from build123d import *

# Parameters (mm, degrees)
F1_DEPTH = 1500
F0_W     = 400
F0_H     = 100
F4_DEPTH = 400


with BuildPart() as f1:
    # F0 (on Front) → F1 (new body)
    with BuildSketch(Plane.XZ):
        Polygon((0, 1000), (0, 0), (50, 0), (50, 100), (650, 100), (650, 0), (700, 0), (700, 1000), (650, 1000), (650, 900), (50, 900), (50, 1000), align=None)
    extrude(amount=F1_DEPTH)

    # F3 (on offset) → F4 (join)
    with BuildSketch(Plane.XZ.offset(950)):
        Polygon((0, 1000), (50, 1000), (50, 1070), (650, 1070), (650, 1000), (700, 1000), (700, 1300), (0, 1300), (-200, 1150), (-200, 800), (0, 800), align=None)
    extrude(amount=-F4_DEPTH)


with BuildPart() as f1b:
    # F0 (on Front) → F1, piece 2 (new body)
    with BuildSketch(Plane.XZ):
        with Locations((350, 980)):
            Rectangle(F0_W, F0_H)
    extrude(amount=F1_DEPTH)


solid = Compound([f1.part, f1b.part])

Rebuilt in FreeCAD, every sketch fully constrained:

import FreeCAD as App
import Part
import Sketcher

V = App.Vector
Q = App.Units.Quantity


def add_polygon(sketch, points):
    """Adds a closed chain of lines whose ends are joined by coincident constraints."""
    first, n = sketch.GeometryCount, len(points)
    for a, b in zip(points, points[1:] + points[:1]):
        sketch.addGeometry(Part.LineSegment(App.Vector(*a, 0), App.Vector(*b, 0)), False)
    for i in range(n):
        sketch.addConstraint(Sketcher.Constraint("Coincident", first + i, 2, first + (i + 1) % n, 1))

doc = App.newDocument("Part")
body = doc.addObject("PartDesign::Body", "Body")

sketch1 = doc.addObject("Sketcher::SketchObject", "Sketch")
body.addObject(sketch1)
sketch1.AttachmentSupport = (doc.XZ_Plane, [""])
sketch1.MapMode = "FlatFace"
add_polygon(sketch1, [(0, 1000), (0, 0), (50, 0), (50, 100), (650, 100), (650, 0), (700, 0), (700, 1000), (650, 1000), (650, 900), (50, 900), (50, 1000)])
sketch1.addConstraint([
    Sketcher.Constraint("Vertical", 0),
    Sketcher.Constraint("Horizontal", 1),
    Sketcher.Constraint("Vertical", 2),
    Sketcher.Constraint("Horizontal", 3),
    Sketcher.Constraint("Vertical", 4),
    Sketcher.Constraint("Horizontal", 5),
    Sketcher.Constraint("Vertical", 6),
    Sketcher.Constraint("Horizontal", 7),
    Sketcher.Constraint("Vertical", 8),
    Sketcher.Constraint("Horizontal", 9),
    Sketcher.Constraint("Vertical", 10),
    Sketcher.Constraint("Horizontal", 11),
    Sketcher.Constraint("Coincident", 0, 2, -1, 1),
    Sketcher.Constraint("PointOnObject", 4, 2, -1),
    Sketcher.Constraint("Horizontal", 7, 2, 10, 2),
    Sketcher.Constraint("Vertical", 4, 2, 7, 2),
    Sketcher.Constraint("Vertical", 2, 2, 9, 2),
    Sketcher.Constraint("Equal", 1, 5),
    Sketcher.Constraint("Equal", 4, 8),
    Sketcher.Constraint("DistanceX", 1, 1, 1, 2, Q("50 mm")),
    Sketcher.Constraint("DistanceX", 3, 1, 3, 2, Q("600 mm")),
    Sketcher.Constraint("DistanceY", 0, 2, 0, 1, Q("1000 mm")),
    Sketcher.Constraint("DistanceY", 2, 1, 2, 2, Q("100 mm")),
])
pad1 = doc.addObject("PartDesign::Pad", "Pad")
body.addObject(pad1)
pad1.Profile = sketch1
pad1.Length = 1500

sketch2 = doc.addObject("Sketcher::SketchObject", "Sketch001")
body.addObject(sketch2)
sketch2.AttachmentSupport = (doc.XZ_Plane, [""])
sketch2.MapMode = "FlatFace"
sketch2.AttachmentOffset = App.Placement(V(0, 0, 950), App.Rotation())
add_polygon(sketch2, [(0, 1000), (50, 1000), (50, 1070), (650, 1070), (650, 1000), (700, 1000), (700, 1300), (0, 1300), (-200, 1150), (-200, 800), (0, 800)])
sketch2.addConstraint([
    Sketcher.Constraint("Horizontal", 0),
    Sketcher.Constraint("Vertical", 1),
    Sketcher.Constraint("Horizontal", 2),
    Sketcher.Constraint("Vertical", 3),
    Sketcher.Constraint("Horizontal", 4),
    Sketcher.Constraint("Vertical", 5),
    Sketcher.Constraint("Horizontal", 6),
    Sketcher.Constraint("Vertical", 8),
    Sketcher.Constraint("Horizontal", 9),
    Sketcher.Constraint("Vertical", 10),
    Sketcher.Constraint("PointOnObject", 6, 2, -2),
    Sketcher.Constraint("PointOnObject", 9, 2, -2),
    Sketcher.Constraint("Horizontal", 0, 2, 3, 2),
    Sketcher.Constraint("Equal", 0, 4),
    Sketcher.Constraint("Equal", 9, 10),
    Sketcher.Constraint("DistanceX", 0, 1, 0, 2, Q("50 mm")),
    Sketcher.Constraint("DistanceX", 2, 1, 2, 2, Q("600 mm")),
    Sketcher.Constraint("DistanceX", 9, 1, 9, 2, Q("200 mm")),
    Sketcher.Constraint("DistanceY", 1, 1, 1, 2, Q("70 mm")),
    Sketcher.Constraint("DistanceY", 5, 1, 5, 2, Q("300 mm")),
    Sketcher.Constraint("DistanceY", 8, 2, 8, 1, Q("350 mm")),
    Sketcher.Constraint("DistanceY", -1, 1, 0, 2, Q("1000 mm")),
])
pad2 = doc.addObject("PartDesign::Pad", "Pad001")
body.addObject(pad2)
pad2.Profile = sketch2
pad2.Length = 400
pad2.Reversed = True
body2 = doc.addObject("PartDesign::Body", "Body001")

sketch3 = doc.addObject("Sketcher::SketchObject", "Sketch002")
body2.addObject(sketch3)
sketch3.AttachmentSupport = (doc.getObject("XZ_Plane001"), [""])
sketch3.MapMode = "FlatFace"
add_polygon(sketch3, [(150, 1030), (150, 930), (550, 930), (550, 1030)])
sketch3.addConstraint([
    Sketcher.Constraint("Vertical", 0),
    Sketcher.Constraint("Horizontal", 1),
    Sketcher.Constraint("Vertical", 2),
    Sketcher.Constraint("Horizontal", 3),
    Sketcher.Constraint("DistanceX", 1, 1, 1, 2, Q("400 mm")),
    Sketcher.Constraint("DistanceY", 0, 2, 0, 1, Q("100 mm")),
    Sketcher.Constraint("DistanceX", -1, 1, 0, 2, Q("150 mm")),
    Sketcher.Constraint("DistanceY", -1, 1, 0, 2, Q("930 mm")),
])
pad3 = doc.addObject("PartDesign::Pad", "Pad002")
body2.addObject(pad3)
pad3.Profile = sketch3
pad3.Length = 1500

doc.recompute()
